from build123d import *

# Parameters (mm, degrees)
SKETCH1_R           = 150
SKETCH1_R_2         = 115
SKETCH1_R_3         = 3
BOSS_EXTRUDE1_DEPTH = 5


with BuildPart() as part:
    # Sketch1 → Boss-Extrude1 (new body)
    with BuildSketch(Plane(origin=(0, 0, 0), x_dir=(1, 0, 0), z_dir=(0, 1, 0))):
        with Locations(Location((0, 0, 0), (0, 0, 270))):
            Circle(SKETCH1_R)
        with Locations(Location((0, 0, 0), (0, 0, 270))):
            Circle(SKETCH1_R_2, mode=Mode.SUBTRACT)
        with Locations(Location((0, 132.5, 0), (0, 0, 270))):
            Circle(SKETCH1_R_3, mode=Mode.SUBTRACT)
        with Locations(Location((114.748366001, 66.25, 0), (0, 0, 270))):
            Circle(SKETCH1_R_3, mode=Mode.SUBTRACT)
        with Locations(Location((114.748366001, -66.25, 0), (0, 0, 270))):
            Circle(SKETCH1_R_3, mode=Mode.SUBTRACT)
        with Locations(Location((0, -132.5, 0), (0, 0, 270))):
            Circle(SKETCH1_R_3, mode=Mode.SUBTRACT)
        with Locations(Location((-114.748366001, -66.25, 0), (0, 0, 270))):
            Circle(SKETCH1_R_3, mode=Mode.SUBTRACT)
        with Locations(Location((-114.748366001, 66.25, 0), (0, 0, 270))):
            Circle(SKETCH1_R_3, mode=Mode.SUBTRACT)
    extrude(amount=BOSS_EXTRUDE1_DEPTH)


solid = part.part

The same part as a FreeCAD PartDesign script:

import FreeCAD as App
import Part
import Sketcher
from FreeCAD import Vector
Q = App.Units.Quantity

doc = App.newDocument("Part")
body = doc.addObject("PartDesign::Body", "Body")

# Sketch on XZ plane
sketch1 = doc.addObject("Sketcher::SketchObject", "Sketch")
body.addObject(sketch1)
sketch1.AttachmentSupport = (doc.XZ_Plane, [""])
sketch1.MapMode = "FlatFace"
sketch1.addGeometry([
    Part.Circle(Vector(0, 0, 0), Vector(0, 0, 1), 150),  # 0
    Part.Circle(Vector(-114.7, -66.2, 0), Vector(0, 0, 1), 3),  # 1
    Part.Circle(Vector(0, -132.5, 0), Vector(0, 0, 1), 3),  # 2
    Part.Circle(Vector(-114.7, 66.2, 0), Vector(0, 0, 1), 3),  # 3
    Part.Circle(Vector(0, 0, 0), Vector(0, 0, 1), 115),  # 4
    Part.Circle(Vector(114.7, -66.2, 0), Vector(0, 0, 1), 3),  # 5
    Part.Circle(Vector(0, 132.5, 0), Vector(0, 0, 1), 3),  # 6
    Part.Circle(Vector(114.7, 66.2, 0), Vector(0, 0, 1), 3),  # 7
], False)
sketch1.addConstraint([
    Sketcher.Constraint("Coincident", 0, 3, -1, 1),
    Sketcher.Constraint("Coincident", 4, 3, -1, 1),
    Sketcher.Constraint("Equal", 1, 2),
    Sketcher.Constraint("Equal", 2, 3),
    Sketcher.Constraint("Equal", 3, 5),
    Sketcher.Constraint("Equal", 5, 6),
    Sketcher.Constraint("Equal", 6, 7),
    Sketcher.Constraint("Symmetric", 3, 3, 5, 3, -1, 1),
    Sketcher.Constraint("Symmetric", 2, 3, 6, 3, -1, 1),
    Sketcher.Constraint("Symmetric", 1, 3, 7, 3, -1, 1),
    Sketcher.Constraint("Symmetric", 1, 3, 5, 3, -2),
    Sketcher.Constraint("PointOnObject", 2, 3, -2),
    Sketcher.Constraint("Diameter", 0, Q("300 mm")),
    Sketcher.Constraint("Diameter", 1, Q("6 mm")),
    Sketcher.Constraint("Diameter", 4, Q("230 mm")),
    Sketcher.Constraint("DistanceY", 2, 3, -1, 1, Q("132.5 mm")),
    Sketcher.Constraint("DistanceY", 1, 3, 3, 3, Q("132.5 mm")),
    Sketcher.Constraint("DistanceX", 1, 3, -1, 1, Q("114.748366 mm")),
])
pad1 = doc.addObject("PartDesign::Pad", "Pad")
body.addObject(pad1)
pad1.Profile = sketch1
pad1.Length = 5
pad1.Reversed = True

doc.recompute()
